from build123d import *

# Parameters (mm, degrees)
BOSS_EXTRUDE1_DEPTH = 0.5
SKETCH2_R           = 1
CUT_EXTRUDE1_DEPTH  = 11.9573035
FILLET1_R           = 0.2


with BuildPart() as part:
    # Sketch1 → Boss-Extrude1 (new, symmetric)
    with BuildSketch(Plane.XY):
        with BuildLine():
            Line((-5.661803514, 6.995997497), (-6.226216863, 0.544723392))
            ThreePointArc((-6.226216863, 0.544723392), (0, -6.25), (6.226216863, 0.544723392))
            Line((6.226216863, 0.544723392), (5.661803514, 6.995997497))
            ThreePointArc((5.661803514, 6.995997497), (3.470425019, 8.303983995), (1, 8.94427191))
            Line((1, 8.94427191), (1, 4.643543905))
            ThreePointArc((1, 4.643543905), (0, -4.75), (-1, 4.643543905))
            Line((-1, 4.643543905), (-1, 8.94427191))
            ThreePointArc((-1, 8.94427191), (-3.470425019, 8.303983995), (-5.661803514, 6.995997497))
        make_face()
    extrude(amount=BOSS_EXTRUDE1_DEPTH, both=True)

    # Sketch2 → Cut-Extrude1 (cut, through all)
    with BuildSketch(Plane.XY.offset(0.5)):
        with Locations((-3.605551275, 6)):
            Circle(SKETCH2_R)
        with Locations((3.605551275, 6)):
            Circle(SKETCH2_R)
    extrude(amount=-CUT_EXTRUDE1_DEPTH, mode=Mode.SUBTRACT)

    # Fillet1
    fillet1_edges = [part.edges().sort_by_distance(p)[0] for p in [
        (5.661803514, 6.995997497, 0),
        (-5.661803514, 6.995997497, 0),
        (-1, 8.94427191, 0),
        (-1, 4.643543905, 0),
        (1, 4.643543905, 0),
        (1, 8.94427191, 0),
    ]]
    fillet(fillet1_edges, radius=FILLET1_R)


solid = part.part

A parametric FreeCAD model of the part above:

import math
import FreeCAD as App
import Part
import Sketcher
Q = App.Units.Quantity


def edges_at(feature, points):
    """Names of the edges that pass closest to the given points."""
    edges = feature.Shape.Edges
    near = lambda p: min(range(len(edges)), key=lambda i: edges[i].distToShape(Part.Vertex(*p))[0])
    return sorted({f"Edge{near(p) + 1}" for p in points})

doc = App.newDocument("Part")
body = doc.addObject("PartDesign::Body", "Body")

# Sketch on XY plane
sketch1 = doc.addObject("Sketcher::SketchObject", "Sketch")
body.addObject(sketch1)
sketch1.AttachmentSupport = (doc.XY_Plane, [""])
sketch1.MapMode = "FlatFace"
sketch1.addGeometry(Part.LineSegment(App.Vector(-5.7, 7, 0), App.Vector(-6.2, 0.5, 0)), False)
sketch1.addGeometry(Part.ArcOfCircle(Part.Circle(App.Vector(0, 0, 0), App.Vector(0, 0, 1), 6.2), math.radians(175), math.radians(365)), False)
sketch1.addGeometry(Part.LineSegment(App.Vector(6.2, 0.5, 0), App.Vector(5.7, 7, 0)), False)
sketch1.addGeometry(Part.ArcOfCircle(Part.Circle(App.Vector(0, 0, 0), App.Vector(0, 0, 1), 9), math.radians(51), math.radians(84)), False)
sketch1.addGeometry(Part.LineSegment(App.Vector(1, 8.9, 0), App.Vector(1, 4.6, 0)), False)
sketch1.addGeometry(Part.ArcOfCircle(Part.Circle(App.Vector(0, 0, 0), App.Vector(0, 0, 1), 4.8), math.radians(102), math.radians(438)), False)
sketch1.addGeometry(Part.LineSegment(App.Vector(-1, 4.6, 0), App.Vector(-1, 8.9, 0)), False)
sketch1.addGeometry(Part.ArcOfCircle(Part.Circle(App.Vector(0, 0, 0), App.Vector(0, 0, 1), 9), math.radians(96), math.radians(129)), False)
sketch1.addConstraint(Sketcher.Constraint("Tangent", 0, 2, 1, 1))
sketch1.addConstraint(Sketcher.Constraint("Tangent", 1, 2, 2, 1))
sketch1.addConstraint(Sketcher.Constraint("Coincident", 2, 2, 3, 1))
sketch1.addConstraint(Sketcher.Constraint("Coincident", 3, 2, 4, 1))
sketch1.addConstraint(Sketcher.Constraint("Coincident", 4, 2, 5, 2))
sketch1.addConstraint(Sketcher.Constraint("Coincident", 5, 1, 6, 1))
sketch1.addConstraint(Sketcher.Constraint("Coincident", 6, 2, 7, 1))
sketch1.addConstraint(Sketcher.Constraint("Coincident", 7, 2, 0, 1))
sketch1.addConstraint(Sketcher.Constraint("Vertical", 4))
sketch1.addConstraint(Sketcher.Constraint("Vertical", 6))
sketch1.addConstraint(Sketcher.Constraint("Coincident", 1, 3, -1, 1))
sketch1.addConstraint(Sketcher.Constraint("Coincident", 3, 3, -1, 1))
sketch1.addConstraint(Sketcher.Constraint("Coincident", 5, 3, -1, 1))
sketch1.addConstraint(Sketcher.Constraint("Coincident", 7, 3, -1, 1))
sketch1.addConstraint(Sketcher.Constraint("Equal", 3, 7))
sketch1.addConstraint(Sketcher.Constraint("Horizontal", 0, 2, 1, 2))
sketch1.addConstraint(Sketcher.Constraint("Horizontal", 4, 2, 5, 1))
sketch1.addConstraint(Sketcher.Constraint("Radius", 3, 9.0))
sketch1.addConstraint(Sketcher.Constraint("Angle", 0, Q("-95 deg")))
sketch1.addConstraint(Sketcher.Constraint("Radius", 1, 6.25))
sketch1.addConstraint(Sketcher.Constraint("Radius", 5, 4.75))
sketch1.addConstraint(Sketcher.Constraint("DistanceX", -1, 1, 3, 2, 1.0))
pad1 = doc.addObject("PartDesign::Pad", "Pad")
body.addObject(pad1)
pad1.Profile = sketch1
pad1.Length = 1
pad1.Midplane = True

# Sketch on XY plane
sketch2 = doc.addObject("Sketcher::SketchObject", "Sketch001")
body.addObject(sketch2)
sketch2.AttachmentSupport = (doc.XY_Plane, [""])
sketch2.MapMode = "FlatFace"
sketch2.AttachmentOffset = App.Placement(App.Vector(0, 0, 0.5), App.Rotation())
sketch2.addGeometry(Part.Circle(App.Vector(-3.6, 6, 0), App.Vector(0, 0, 1), 1), False)
sketch2.addGeometry(Part.Circle(App.Vector(3.6, 6, 0), App.Vector(0, 0, 1), 1), False)
sketch2.addConstraint(Sketcher.Constraint("Equal", 0, 1))
sketch2.addConstraint(Sketcher.Constraint("Symmetric", 0, 3, 1, 3, -2))
sketch2.addConstraint(Sketcher.Constraint("Diameter", 0, 2.0))
sketch2.addConstraint(Sketcher.Constraint("DistanceY", -1, 1, 0, 3, 6.0))
sketch2.addConstraint(Sketcher.Constraint("DistanceX", 0, 3, -1, 1, 3.605551))
pocket1 = doc.addObject("PartDesign::Pocket", "Pocket")
body.addObject(pocket1)
pocket1.Profile = sketch2
pocket1.Type = "ThroughAll"
doc.recompute()

fillet = doc.addObject("PartDesign::Fillet", "Fillet")
body.addObject(fillet)
fillet.Base = (pocket1, edges_at(pocket1, [
    (5.662, 6.996, 0),
    (-5.662, 6.996, 0),
    (-1, 8.944, 0),
    (-1, 4.644, 0),
    (1, 4.644, 0),
    (1, 8.944, 0),
]))
fillet.Radius = 0.2

doc.recompute()
